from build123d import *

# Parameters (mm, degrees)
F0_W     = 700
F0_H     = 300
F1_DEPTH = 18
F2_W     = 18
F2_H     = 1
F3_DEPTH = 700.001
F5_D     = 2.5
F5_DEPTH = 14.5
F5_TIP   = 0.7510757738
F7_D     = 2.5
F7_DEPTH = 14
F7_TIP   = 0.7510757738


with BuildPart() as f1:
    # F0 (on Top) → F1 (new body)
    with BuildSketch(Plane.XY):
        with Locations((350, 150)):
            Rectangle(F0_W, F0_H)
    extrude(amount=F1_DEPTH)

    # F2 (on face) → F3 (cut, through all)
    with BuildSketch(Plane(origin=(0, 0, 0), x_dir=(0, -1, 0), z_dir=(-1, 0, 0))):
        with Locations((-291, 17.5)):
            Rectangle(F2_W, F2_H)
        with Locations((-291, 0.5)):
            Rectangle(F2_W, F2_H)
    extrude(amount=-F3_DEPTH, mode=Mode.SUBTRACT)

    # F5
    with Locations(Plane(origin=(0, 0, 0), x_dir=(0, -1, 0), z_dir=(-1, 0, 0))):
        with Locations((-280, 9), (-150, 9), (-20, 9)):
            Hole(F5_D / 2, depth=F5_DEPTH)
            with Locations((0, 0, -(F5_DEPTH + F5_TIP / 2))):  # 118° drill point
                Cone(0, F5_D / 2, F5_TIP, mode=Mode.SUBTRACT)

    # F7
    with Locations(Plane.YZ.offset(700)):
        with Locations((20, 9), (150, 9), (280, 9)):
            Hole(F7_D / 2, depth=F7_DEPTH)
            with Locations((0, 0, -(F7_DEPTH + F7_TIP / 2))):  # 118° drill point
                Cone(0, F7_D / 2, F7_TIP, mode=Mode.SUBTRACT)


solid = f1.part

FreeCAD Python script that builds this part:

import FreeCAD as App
import Part
import Sketcher
Q = App.Units.Quantity

doc = App.newDocument("Part")
params = doc.addObject("Spreadsheet::Sheet", "Params")
for row, (alias, value) in enumerate([
    ("sketch1_width", "700 mm"),
    ("sketch1_height", "300 mm"),
    ("pad1_length", "18 mm"),
    ("sketch2_width", "18 mm"),
    ("sketch2_height", "1 mm"),
    ("sketch3_diameter", "2.5 mm"),
    ("hole_diameter", "2.5 mm"),
    ("hole_depth", "14.5 mm"),
    ("sketch4_diameter", "2.5 mm"),
    ("hole2_diameter", "2.5 mm"),
    ("hole2_depth", "14 mm"),
], start=1):
    params.set(f"A{row}", alias)
    params.set(f"B{row}", "=" + value)
    params.setAlias(f"B{row}", alias)

body = doc.addObject("PartDesign::Body", "Body")

sketch1 = body.newObject("Sketcher::SketchObject", "Sketch")
sketch1.AttachmentSupport = (doc.getObject("XY_Plane"), [""])
sketch1.MapMode = "FlatFace"
sketch1.addGeometry(Part.LineSegment(App.Vector(0, 300, 0), App.Vector(0, 0, 0)), False)
sketch1.addGeometry(Part.LineSegment(App.Vector(0, 0, 0), App.Vector(700, 0, 0)), False)
sketch1.addGeometry(Part.LineSegment(App.Vector(700, 0, 0), App.Vector(700, 300, 0)), False)
sketch1.addGeometry(Part.LineSegment(App.Vector(700, 300, 0), App.Vector(0, 300, 0)), False)
sketch1.addConstraint(Sketcher.Constraint("Coincident", 0, 2, 1, 1))
sketch1.addConstraint(Sketcher.Constraint("Coincident", 1, 2, 2, 1))
sketch1.addConstraint(Sketcher.Constraint("Coincident", 2, 2, 3, 1))
sketch1.addConstraint(Sketcher.Constraint("Coincident", 3, 2, 0, 1))
sketch1.addConstraint(Sketcher.Constraint("Vertical", 0))
sketch1.addConstraint(Sketcher.Constraint("Horizontal", 1))
sketch1.addConstraint(Sketcher.Constraint("Vertical", 2))
sketch1.addConstraint(Sketcher.Constraint("Horizontal", 3))
sketch1.addConstraint(Sketcher.Constraint("Coincident", 0, 2, -1, 1))
sketch1.addConstraint(Sketcher.Constraint("DistanceX", 1, 1, 1, 2, Q("700 mm")))
sketch1.addConstraint(Sketcher.Constraint("DistanceY", 0, 2, 0, 1, Q("300 mm")))
sketch1.setExpression("Constraints[9]", "Params.sketch1_width")
sketch1.setExpression("Constraints[10]", "Params.sketch1_height")
pad1 = body.newObject("PartDesign::Pad", "Pad")
pad1.Profile = sketch1
pad1.setExpression("Length", "Params.pad1_length")

sketch2 = body.newObject("Sketcher::SketchObject", "Sketch001")
sketch2.AttachmentSupport = (doc.getObject("YZ_Plane"), [""])
sketch2.MapMode = "FlatFace"
sketch2.addGeometry(Part.LineSegment(App.Vector(300, 18, 0), App.Vector(300, 17, 0)), False)
sketch2.addGeometry(Part.LineSegment(App.Vector(300, 17, 0), App.Vector(282, 17, 0)), False)
sketch2.addGeometry(Part.LineSegment(App.Vector(282, 17, 0), App.Vector(282, 18, 0)), False)
sketch2.addGeometry(Part.LineSegment(App.Vector(282, 18, 0), App.Vector(300, 18, 0)), False)
sketch2.addGeometry(Part.LineSegment(App.Vector(300, 1, 0), App.Vector(300, 0, 0)), False)
sketch2.addGeometry(Part.LineSegment(App.Vector(300, 0, 0), App.Vector(282, 0, 0)), False)
sketch2.addGeometry(Part.LineSegment(App.Vector(282, 0, 0), App.Vector(282, 1, 0)), False)
sketch2.addGeometry(Part.LineSegment(App.Vector(282, 1, 0), App.Vector(300, 1, 0)), False)
sketch2.addConstraint(Sketcher.Constraint("Coincident", 0, 2, 1, 1))
sketch2.addConstraint(Sketcher.Constraint("Coincident", 1, 2, 2, 1))
sketch2.addConstraint(Sketcher.Constraint("Coincident", 2, 2, 3, 1))
sketch2.addConstraint(Sketcher.Constraint("Coincident", 3, 2, 0, 1))
sketch2.addConstraint(Sketcher.Constraint("Coincident", 4, 2, 5, 1))
sketch2.addConstraint(Sketcher.Constraint("Coincident", 5, 2, 6, 1))
sketch2.addConstraint(Sketcher.Constraint("Coincident", 6, 2, 7, 1))
sketch2.addConstraint(Sketcher.Constraint("Coincident", 7, 2, 4, 1))
sketch2.addConstraint(Sketcher.Constraint("Vertical", 0))
sketch2.addConstraint(Sketcher.Constraint("Horizontal", 1))
sketch2.addConstraint(Sketcher.Constraint("Vertical", 2))
sketch2.addConstraint(Sketcher.Constraint("Horizontal", 3))
sketch2.addConstraint(Sketcher.Constraint("Vertical", 4))
sketch2.addConstraint(Sketcher.Constraint("Horizontal", 5))
sketch2.addConstraint(Sketcher.Constraint("Vertical", 6))
sketch2.addConstraint(Sketcher.Constraint("Horizontal", 7))
sketch2.addConstraint(Sketcher.Constraint("PointOnObject", 4, 2, -1))
sketch2.addConstraint(Sketcher.Constraint("Vertical", 3, 2, 4, 2))
sketch2.addConstraint(Sketcher.Constraint("Vertical", 2, 2, 5, 2))
sketch2.addConstraint(Sketcher.Constraint("Equal", 2, 4))
sketch2.addConstraint(Sketcher.Constraint("DistanceX", 1, 2, 1, 1, Q("18 mm")))
sketch2.addConstraint(Sketcher.Constraint("DistanceY", 0, 2, 0, 1, Q("1 mm")))
sketch2.addConstraint(Sketcher.Constraint("DistanceX", -1, 1, 0, 2, Q("300 mm")))
sketch2.addConstraint(Sketcher.Constraint("DistanceY", -1, 1, 0, 2, Q("17 mm")))
sketch2.setExpression("Constraints[20]", "Params.sketch2_width")
sketch2.setExpression("Constraints[21]", "Params.sketch2_height")
pocket1 = body.newObject("PartDesign::Pocket", "Pocket")
pocket1.Profile = sketch2
pocket1.Type = "ThroughAll"
pocket1.Reversed = True

sketch3 = body.newObject("Sketcher::SketchObject", "Sketch002")
sketch3.AttachmentSupport = (doc.getObject("YZ_Plane"), [""])
sketch3.MapMode = "FlatFace"
sketch3.addGeometry(Part.Circle(App.Vector(280, 9, 0), App.Vector(0, 0, 1), 1.2), False)
sketch3.addGeometry(Part.Circle(App.Vector(150, 9, 0), App.Vector(0, 0, 1), 1.2), False)
sketch3.addGeometry(Part.Circle(App.Vector(20, 9, 0), App.Vector(0, 0, 1), 1.2), False)
sketch3.addConstraint(Sketcher.Constraint("Equal", 0, 1))
sketch3.addConstraint(Sketcher.Constraint("Equal", 1, 2))
sketch3.addConstraint(Sketcher.Constraint("Horizontal", 0, 3, 1, 3))
sketch3.addConstraint(Sketcher.Constraint("Horizontal", 1, 3, 2, 3))
sketch3.addConstraint(Sketcher.Constraint("Diameter", 0, Q("2.5 mm")))
sketch3.addConstraint(Sketcher.Constraint("DistanceX", -1, 1, 0, 3, Q("280 mm")))
sketch3.addConstraint(Sketcher.Constraint("DistanceY", -1, 1, 0, 3, Q("9 mm")))
sketch3.addConstraint(Sketcher.Constraint("DistanceX", -1, 1, 1, 3, Q("150 mm")))
sketch3.addConstraint(Sketcher.Constraint("DistanceX", -1, 1, 2, 3, Q("20 mm")))
sketch3.setExpression("Constraints[4]", "Params.sketch3_diameter")
doc.recompute()
hole = body.newObject("PartDesign::Hole", "Hole")
hole.Profile = sketch3
hole.ThreadType = "None"
hole.setExpression("Diameter", "Params.hole_diameter")
hole.DepthType = "Dimension"
hole.setExpression("Depth", "Params.hole_depth")
hole.DrillPoint = "Angled"
hole.DrillPointAngle = 118
hole.Reversed = True

sketch4 = body.newObject("Sketcher::SketchObject", "Sketch003")
sketch4.AttachmentSupport = (doc.getObject("YZ_Plane"), [""])
sketch4.MapMode = "FlatFace"
sketch4.AttachmentOffset = App.Placement(App.Vector(0, 0, 700), App.Rotation())
sketch4.addGeometry(Part.Circle(App.Vector(20, 9, 0), App.Vector(0, 0, 1), 1.2), False)
sketch4.addGeometry(Part.Circle(App.Vector(150, 9, 0), App.Vector(0, 0, 1), 1.2), False)
sketch4.addGeometry(Part.Circle(App.Vector(280, 9, 0), App.Vector(0, 0, 1), 1.2), False)
sketch4.addConstraint(Sketcher.Constraint("Equal", 0, 1))
sketch4.addConstraint(Sketcher.Constraint("Equal", 1, 2))
sketch4.addConstraint(Sketcher.Constraint("Horizontal", 0, 3, 1, 3))
sketch4.addConstraint(Sketcher.Constraint("Horizontal", 1, 3, 2, 3))
sketch4.addConstraint(Sketcher.Constraint("Diameter", 0, Q("2.5 mm")))
sketch4.addConstraint(Sketcher.Constraint("DistanceX", -1, 1, 0, 3, Q("20 mm")))
sketch4.addConstraint(Sketcher.Constraint("DistanceY", -1, 1, 0, 3, Q("9 mm")))
sketch4.addConstraint(Sketcher.Constraint("DistanceX", -1, 1, 1, 3, Q("150 mm")))
sketch4.addConstraint(Sketcher.Constraint("DistanceX", -1, 1, 2, 3, Q("280 mm")))
sketch4.setExpression("Constraints[4]", "Params.sketch4_diameter")
doc.recompute()
hole2 = body.newObject("PartDesign::Hole", "Hole001")
hole2.Profile = sketch4
hole2.ThreadType = "None"
hole2.setExpression("Diameter", "Params.hole2_diameter")
hole2.DepthType = "Dimension"
hole2.setExpression("Depth", "Params.hole2_depth")
hole2.DrillPoint = "Angled"
hole2.DrillPointAngle = 118

doc.recompute()
